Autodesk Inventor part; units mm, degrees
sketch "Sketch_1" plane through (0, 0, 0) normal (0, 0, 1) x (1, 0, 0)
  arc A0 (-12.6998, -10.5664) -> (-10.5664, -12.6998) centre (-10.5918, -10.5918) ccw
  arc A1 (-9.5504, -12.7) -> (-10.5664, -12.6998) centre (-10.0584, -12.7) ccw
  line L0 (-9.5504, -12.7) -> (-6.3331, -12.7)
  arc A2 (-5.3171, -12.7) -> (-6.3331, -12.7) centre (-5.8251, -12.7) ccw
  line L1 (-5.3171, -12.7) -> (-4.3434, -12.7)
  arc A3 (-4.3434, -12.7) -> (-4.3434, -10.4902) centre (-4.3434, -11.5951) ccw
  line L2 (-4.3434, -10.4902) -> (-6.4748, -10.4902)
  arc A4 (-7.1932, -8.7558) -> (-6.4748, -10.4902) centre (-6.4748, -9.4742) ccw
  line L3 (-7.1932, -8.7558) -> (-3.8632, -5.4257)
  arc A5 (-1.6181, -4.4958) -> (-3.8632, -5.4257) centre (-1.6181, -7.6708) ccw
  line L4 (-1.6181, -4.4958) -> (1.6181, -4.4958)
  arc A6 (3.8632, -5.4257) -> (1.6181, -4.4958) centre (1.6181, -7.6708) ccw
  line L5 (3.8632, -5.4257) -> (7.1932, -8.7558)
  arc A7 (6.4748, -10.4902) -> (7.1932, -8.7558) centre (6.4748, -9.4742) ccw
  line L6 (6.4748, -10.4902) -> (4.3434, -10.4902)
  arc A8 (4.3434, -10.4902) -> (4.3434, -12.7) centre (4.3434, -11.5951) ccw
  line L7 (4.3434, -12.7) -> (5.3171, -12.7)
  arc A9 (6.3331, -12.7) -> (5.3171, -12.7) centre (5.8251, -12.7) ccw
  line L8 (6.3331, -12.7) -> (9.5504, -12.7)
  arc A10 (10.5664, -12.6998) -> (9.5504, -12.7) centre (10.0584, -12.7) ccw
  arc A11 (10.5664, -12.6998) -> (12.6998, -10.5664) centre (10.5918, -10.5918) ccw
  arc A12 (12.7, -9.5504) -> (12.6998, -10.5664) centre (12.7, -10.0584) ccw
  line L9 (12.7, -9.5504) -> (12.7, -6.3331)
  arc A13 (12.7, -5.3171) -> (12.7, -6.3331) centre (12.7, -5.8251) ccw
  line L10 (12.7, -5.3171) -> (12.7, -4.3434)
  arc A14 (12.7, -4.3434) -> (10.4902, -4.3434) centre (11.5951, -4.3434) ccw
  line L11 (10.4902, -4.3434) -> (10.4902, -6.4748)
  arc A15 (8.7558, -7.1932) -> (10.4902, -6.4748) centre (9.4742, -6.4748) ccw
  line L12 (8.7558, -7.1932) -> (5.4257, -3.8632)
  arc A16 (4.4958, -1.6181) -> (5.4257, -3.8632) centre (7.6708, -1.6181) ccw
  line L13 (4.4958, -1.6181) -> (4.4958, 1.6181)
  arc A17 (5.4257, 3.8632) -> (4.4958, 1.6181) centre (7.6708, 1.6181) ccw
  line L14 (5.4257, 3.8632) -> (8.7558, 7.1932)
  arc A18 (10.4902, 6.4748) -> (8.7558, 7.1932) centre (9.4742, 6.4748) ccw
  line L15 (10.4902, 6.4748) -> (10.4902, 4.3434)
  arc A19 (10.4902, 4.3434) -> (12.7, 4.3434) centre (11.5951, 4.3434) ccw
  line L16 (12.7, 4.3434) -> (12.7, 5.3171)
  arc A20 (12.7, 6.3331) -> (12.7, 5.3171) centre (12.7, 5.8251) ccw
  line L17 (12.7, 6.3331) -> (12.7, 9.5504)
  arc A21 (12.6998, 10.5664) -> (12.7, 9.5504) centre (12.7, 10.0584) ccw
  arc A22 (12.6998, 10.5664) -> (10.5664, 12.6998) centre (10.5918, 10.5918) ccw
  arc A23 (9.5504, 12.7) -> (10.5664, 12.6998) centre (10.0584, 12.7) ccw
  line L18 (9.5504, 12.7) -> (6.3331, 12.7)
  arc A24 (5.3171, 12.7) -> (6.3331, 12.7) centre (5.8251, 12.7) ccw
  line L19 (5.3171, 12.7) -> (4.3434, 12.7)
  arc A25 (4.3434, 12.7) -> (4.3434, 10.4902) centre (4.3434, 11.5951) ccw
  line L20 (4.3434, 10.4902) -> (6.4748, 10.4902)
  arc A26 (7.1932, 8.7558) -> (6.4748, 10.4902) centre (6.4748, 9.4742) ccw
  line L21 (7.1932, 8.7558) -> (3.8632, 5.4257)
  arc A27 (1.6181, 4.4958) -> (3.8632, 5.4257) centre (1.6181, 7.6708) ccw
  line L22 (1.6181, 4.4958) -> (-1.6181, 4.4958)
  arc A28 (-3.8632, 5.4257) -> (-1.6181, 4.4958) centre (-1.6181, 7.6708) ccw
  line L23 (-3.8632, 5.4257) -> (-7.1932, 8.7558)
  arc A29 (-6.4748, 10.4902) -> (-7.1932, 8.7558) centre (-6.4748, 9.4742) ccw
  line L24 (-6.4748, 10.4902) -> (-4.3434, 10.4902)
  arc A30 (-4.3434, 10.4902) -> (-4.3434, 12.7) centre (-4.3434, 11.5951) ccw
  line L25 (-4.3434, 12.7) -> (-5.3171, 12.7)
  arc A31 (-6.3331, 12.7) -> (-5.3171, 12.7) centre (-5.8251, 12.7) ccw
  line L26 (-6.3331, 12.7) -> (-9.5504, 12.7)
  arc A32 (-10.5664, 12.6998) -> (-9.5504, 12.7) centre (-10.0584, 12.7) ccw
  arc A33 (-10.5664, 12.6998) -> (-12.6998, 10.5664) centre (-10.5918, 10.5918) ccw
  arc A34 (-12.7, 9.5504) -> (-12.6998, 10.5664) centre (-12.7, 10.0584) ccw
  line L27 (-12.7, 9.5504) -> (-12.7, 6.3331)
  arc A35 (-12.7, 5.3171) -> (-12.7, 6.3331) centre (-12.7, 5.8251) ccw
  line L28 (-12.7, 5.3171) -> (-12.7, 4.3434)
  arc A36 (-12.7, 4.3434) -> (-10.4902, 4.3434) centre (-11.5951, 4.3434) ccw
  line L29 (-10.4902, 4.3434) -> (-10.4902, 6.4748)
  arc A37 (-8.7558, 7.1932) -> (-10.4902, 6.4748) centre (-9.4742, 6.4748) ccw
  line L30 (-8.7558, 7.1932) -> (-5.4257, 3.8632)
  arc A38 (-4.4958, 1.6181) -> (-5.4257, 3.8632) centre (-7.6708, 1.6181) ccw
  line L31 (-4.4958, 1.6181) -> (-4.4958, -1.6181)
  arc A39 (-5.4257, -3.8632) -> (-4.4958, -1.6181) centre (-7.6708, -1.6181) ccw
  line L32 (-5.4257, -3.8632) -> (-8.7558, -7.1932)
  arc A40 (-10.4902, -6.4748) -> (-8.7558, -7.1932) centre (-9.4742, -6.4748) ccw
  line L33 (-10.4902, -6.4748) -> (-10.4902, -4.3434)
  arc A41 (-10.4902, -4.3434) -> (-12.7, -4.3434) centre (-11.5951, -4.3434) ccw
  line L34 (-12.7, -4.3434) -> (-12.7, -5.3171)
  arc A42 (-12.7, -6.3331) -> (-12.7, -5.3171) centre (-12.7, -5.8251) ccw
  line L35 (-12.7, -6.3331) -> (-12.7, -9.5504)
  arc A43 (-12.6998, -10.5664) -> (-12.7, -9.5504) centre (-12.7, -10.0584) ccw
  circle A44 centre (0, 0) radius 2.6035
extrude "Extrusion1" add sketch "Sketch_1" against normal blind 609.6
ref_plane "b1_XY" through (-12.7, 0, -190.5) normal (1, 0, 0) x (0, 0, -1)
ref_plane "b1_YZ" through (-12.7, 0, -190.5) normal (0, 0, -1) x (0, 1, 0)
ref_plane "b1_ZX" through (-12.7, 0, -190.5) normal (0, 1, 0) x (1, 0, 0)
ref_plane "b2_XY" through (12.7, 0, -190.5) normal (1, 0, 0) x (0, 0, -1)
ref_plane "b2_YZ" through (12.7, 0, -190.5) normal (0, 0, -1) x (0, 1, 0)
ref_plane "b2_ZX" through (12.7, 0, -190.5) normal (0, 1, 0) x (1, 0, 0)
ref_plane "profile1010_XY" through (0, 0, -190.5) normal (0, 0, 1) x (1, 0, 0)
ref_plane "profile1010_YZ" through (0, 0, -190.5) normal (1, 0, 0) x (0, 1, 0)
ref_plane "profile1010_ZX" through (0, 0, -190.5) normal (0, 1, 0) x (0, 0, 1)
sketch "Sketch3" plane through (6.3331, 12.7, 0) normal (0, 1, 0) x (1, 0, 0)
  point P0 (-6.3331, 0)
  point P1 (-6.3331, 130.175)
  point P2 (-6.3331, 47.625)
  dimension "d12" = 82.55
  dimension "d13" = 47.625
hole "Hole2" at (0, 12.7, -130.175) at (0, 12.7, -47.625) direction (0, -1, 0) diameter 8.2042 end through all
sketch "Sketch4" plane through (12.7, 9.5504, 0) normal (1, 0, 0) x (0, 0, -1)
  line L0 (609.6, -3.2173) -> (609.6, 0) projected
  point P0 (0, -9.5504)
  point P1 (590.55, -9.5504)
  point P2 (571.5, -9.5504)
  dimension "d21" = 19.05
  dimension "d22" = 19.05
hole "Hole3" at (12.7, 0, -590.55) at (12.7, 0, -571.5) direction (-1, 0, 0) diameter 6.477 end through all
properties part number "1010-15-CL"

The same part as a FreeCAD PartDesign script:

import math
import FreeCAD as App
import Part
import Sketcher
Q = App.Units.Quantity

doc = App.newDocument("Part")
body = doc.addObject("PartDesign::Body", "Body")

# Sketch on XY plane
sketch1 = doc.addObject("Sketcher::SketchObject", "Sketch")
body.addObject(sketch1)
sketch1.AttachmentSupport = (doc.XY_Plane, [""])
sketch1.MapMode = "FlatFace"
sketch1.addGeometry(Part.ArcOfCircle(Part.Circle(App.Vector(-12.7, -10.1, 0), App.Vector(0, 0, 1), 0.5), math.radians(-90), math.radians(90)), False)
sketch1.addGeometry(Part.ArcOfCircle(Part.Circle(App.Vector(-10.6, -10.6, 0), App.Vector(0, 0, 1), 2.1), math.radians(179), math.radians(271)), False)
sketch1.addGeometry(Part.ArcOfCircle(Part.Circle(App.Vector(-10.1, -12.7, 0), App.Vector(0, 0, 1), 0.5), math.radians(0), math.radians(180)), False)
sketch1.addGeometry(Part.LineSegment(App.Vector(-9.6, -12.7, 0), App.Vector(-6.3, -12.7, 0)), False)
sketch1.addGeometry(Part.ArcOfCircle(Part.Circle(App.Vector(-5.8, -12.7, 0), App.Vector(0, 0, 1), 0.5), math.radians(0), math.radians(180)), False)
sketch1.addGeometry(Part.LineSegment(App.Vector(-5.3, -12.7, 0), App.Vector(-4.3, -12.7, 0)), False)
sketch1.addGeometry(Part.ArcOfCircle(Part.Circle(App.Vector(-4.3, -11.6, 0), App.Vector(0, 0, 1), 1.1), math.radians(-90), math.radians(90)), False)
sketch1.addGeometry(Part.LineSegment(App.Vector(-4.3, -10.5, 0), App.Vector(-6.5, -10.5, 0)), False)
sketch1.addGeometry(Part.ArcOfCircle(Part.Circle(App.Vector(-6.5, -9.5, 0), App.Vector(0, 0, 1), 1), math.radians(135), math.radians(270)), False)
sketch1.addGeometry(Part.LineSegment(App.Vector(-7.2, -8.8, 0), App.Vector(-3.9, -5.4, 0)), False)
sketch1.addGeometry(Part.ArcOfCircle(Part.Circle(App.Vector(-1.6, -7.7, 0), App.Vector(0, 0, 1), 3.2), math.radians(90), math.radians(135)), False)
sketch1.addGeometry(Part.LineSegment(App.Vector(-1.6, -4.5, 0), App.Vector(1.6, -4.5, 0)), False)
sketch1.addGeometry(Part.ArcOfCircle(Part.Circle(App.Vector(1.6, -7.7, 0), App.Vector(0, 0, 1), 3.2), math.radians(45), math.radians(90)), False)
sketch1.addGeometry(Part.LineSegment(App.Vector(3.9, -5.4, 0), App.Vector(7.2, -8.8, 0)), False)
sketch1.addGeometry(Part.ArcOfCircle(Part.Circle(App.Vector(6.5, -9.5, 0), App.Vector(0, 0, 1), 1), math.radians(-90), math.radians(45)), False)
sketch1.addGeometry(Part.LineSegment(App.Vector(6.5, -10.5, 0), App.Vector(4.3, -10.5, 0)), False)
sketch1.addGeometry(Part.ArcOfCircle(Part.Circle(App.Vector(4.3, -11.6, 0), App.Vector(0, 0, 1), 1.1), math.radians(90), math.radians(270)), False)
sketch1.addGeometry(Part.LineSegment(App.Vector(4.3, -12.7, 0), App.Vector(5.3, -12.7, 0)), False)
sketch1.addGeometry(Part.ArcOfCircle(Part.Circle(App.Vector(5.8, -12.7, 0), App.Vector(0, 0, 1), 0.5), math.radians(0), math.radians(180)), False)
sketch1.addGeometry(Part.LineSegment(App.Vector(6.3, -12.7, 0), App.Vector(9.6, -12.7, 0)), False)
sketch1.addGeometry(Part.ArcOfCircle(Part.Circle(App.Vector(10.1, -12.7, 0), App.Vector(0, 0, 1), 0.5), math.radians(0), math.radians(180)), False)
sketch1.addGeometry(Part.ArcOfCircle(Part.Circle(App.Vector(10.6, -10.6, 0), App.Vector(0, 0, 1), 2.1), math.radians(-91), math.radians(1)), False)
sketch1.addGeometry(Part.ArcOfCircle(Part.Circle(App.Vector(12.7, -10.1, 0), App.Vector(0, 0, 1), 0.5), math.radians(90), math.radians(270)), False)
sketch1.addGeometry(Part.LineSegment(App.Vector(12.7, -9.6, 0), App.Vector(12.7, -6.3, 0)), False)
sketch1.addGeometry(Part.ArcOfCircle(Part.Circle(App.Vector(12.7, -5.8, 0), App.Vector(0, 0, 1), 0.5), math.radians(90), math.radians(270)), False)
sketch1.addGeometry(Part.LineSegment(App.Vector(12.7, -5.3, 0), App.Vector(12.7, -4.3, 0)), False)
sketch1.addGeometry(Part.ArcOfCircle(Part.Circle(App.Vector(11.6, -4.3, 0), App.Vector(0, 0, 1), 1.1), math.radians(0), math.radians(180)), False)
sketch1.addGeometry(Part.LineSegment(App.Vector(10.5, -4.3, 0), App.Vector(10.5, -6.5, 0)), False)
sketch1.addGeometry(Part.ArcOfCircle(Part.Circle(App.Vector(9.5, -6.5, 0), App.Vector(0, 0, 1), 1), math.radians(-135), math.radians(0)), False)
sketch1.addGeometry(Part.LineSegment(App.Vector(8.8, -7.2, 0), App.Vector(5.4, -3.9, 0)), False)
sketch1.addGeometry(Part.ArcOfCircle(Part.Circle(App.Vector(7.7, -1.6, 0), App.Vector(0, 0, 1), 3.2), math.radians(180), math.radians(225)), False)
sketch1.addGeometry(Part.LineSegment(App.Vector(4.5, -1.6, 0), App.Vector(4.5, 1.6, 0)), False)
sketch1.addGeometry(Part.ArcOfCircle(Part.Circle(App.Vector(7.7, 1.6, 0), App.Vector(0, 0, 1), 3.2), math.radians(135), math.radians(180)), False)
sketch1.addGeometry(Part.LineSegment(App.Vector(5.4, 3.9, 0), App.Vector(8.8, 7.2, 0)), False)
sketch1.addGeometry(Part.ArcOfCircle(Part.Circle(App.Vector(9.5, 6.5, 0), App.Vector(0, 0, 1), 1), math.radians(0), math.radians(135)), False)
sketch1.addGeometry(Part.LineSegment(App.Vector(10.5, 6.5, 0), App.Vector(10.5, 4.3, 0)), False)
sketch1.addGeometry(Part.ArcOfCircle(Part.Circle(App.Vector(11.6, 4.3, 0), App.Vector(0, 0, 1), 1.1), math.radians(180), math.radians(360)), False)
sketch1.addGeometry(Part.LineSegment(App.Vector(12.7, 4.3, 0), App.Vector(12.7, 5.3, 0)), False)
sketch1.addGeometry(Part.ArcOfCircle(Part.Circle(App.Vector(12.7, 5.8, 0), App.Vector(0, 0, 1), 0.5), math.radians(90), math.radians(270)), False)
sketch1.addGeometry(Part.LineSegment(App.Vector(12.7, 6.3, 0), App.Vector(12.7, 9.6, 0)), False)
sketch1.addGeometry(Part.ArcOfCircle(Part.Circle(App.Vector(12.7, 10.1, 0), App.Vector(0, 0, 1), 0.5), math.radians(90), math.radians(270)), False)
sketch1.addGeometry(Part.ArcOfCircle(Part.Circle(App.Vector(10.6, 10.6, 0), App.Vector(0, 0, 1), 2.1), math.radians(-1), math.radians(91)), False)
sketch1.addGeometry(Part.ArcOfCircle(Part.Circle(App.Vector(10.1, 12.7, 0), App.Vector(0, 0, 1), 0.5), math.radians(180), math.radians(360)), False)
sketch1.addGeometry(Part.LineSegment(App.Vector(9.6, 12.7, 0), App.Vector(6.3, 12.7, 0)), False)
sketch1.addGeometry(Part.ArcOfCircle(Part.Circle(App.Vector(5.8, 12.7, 0), App.Vector(0, 0, 1), 0.5), math.radians(180), math.radians(360)), False)
sketch1.addGeometry(Part.LineSegment(App.Vector(5.3, 12.7, 0), App.Vector(4.3, 12.7, 0)), False)
sketch1.addGeometry(Part.ArcOfCircle(Part.Circle(App.Vector(4.3, 11.6, 0), App.Vector(0, 0, 1), 1.1), math.radians(90), math.radians(270)), False)
sketch1.addGeometry(Part.LineSegment(App.Vector(4.3, 10.5, 0), App.Vector(6.5, 10.5, 0)), False)
sketch1.addGeometry(Part.ArcOfCircle(Part.Circle(App.Vector(6.5, 9.5, 0), App.Vector(0, 0, 1), 1), math.radians(-45), math.radians(90)), False)
sketch1.addGeometry(Part.LineSegment(App.Vector(7.2, 8.8, 0), App.Vector(3.9, 5.4, 0)), False)
sketch1.addGeometry(Part.ArcOfCircle(Part.Circle(App.Vector(1.6, 7.7, 0), App.Vector(0, 0, 1), 3.2), math.radians(-90), math.radians(-45)), False)
sketch1.addGeometry(Part.LineSegment(App.Vector(1.6, 4.5, 0), App.Vector(-1.6, 4.5, 0)), False)
sketch1.addGeometry(Part.ArcOfCircle(Part.Circle(App.Vector(-1.6, 7.7, 0), App.Vector(0, 0, 1), 3.2), math.radians(-135), math.radians(-90)), False)
sketch1.addGeometry(Part.LineSegment(App.Vector(-3.9, 5.4, 0), App.Vector(-7.2, 8.8, 0)), False)
sketch1.addGeometry(Part.ArcOfCircle(Part.Circle(App.Vector(-6.5, 9.5, 0), App.Vector(0, 0, 1), 1), math.radians(90), math.radians(225)), False)
sketch1.addGeometry(Part.LineSegment(App.Vector(-6.5, 10.5, 0), App.Vector(-4.3, 10.5, 0)), False)
sketch1.addGeometry(Part.ArcOfCircle(Part.Circle(App.Vector(-4.3, 11.6, 0), App.Vector(0, 0, 1), 1.1), math.radians(-90), math.radians(90)), False)
sketch1.addGeometry(Part.LineSegment(App.Vector(-4.3, 12.7, 0), App.Vector(-5.3, 12.7, 0)), False)
sketch1.addGeometry(Part.ArcOfCircle(Part.Circle(App.Vector(-5.8, 12.7, 0), App.Vector(0, 0, 1), 0.5), math.radians(180), math.radians(360)), False)
sketch1.addGeometry(Part.LineSegment(App.Vector(-6.3, 12.7, 0), App.Vector(-9.6, 12.7, 0)), False)
sketch1.addGeometry(Part.ArcOfCircle(Part.Circle(App.Vector(-10.1, 12.7, 0), App.Vector(0, 0, 1), 0.5), math.radians(-180), math.radians(0)), False)
sketch1.addGeometry(Part.ArcOfCircle(Part.Circle(App.Vector(-10.6, 10.6, 0), App.Vector(0, 0, 1), 2.1), math.radians(89), math.radians(181)), False)
sketch1.addGeometry(Part.ArcOfCircle(Part.Circle(App.Vector(-12.7, 10.1, 0), App.Vector(0, 0, 1), 0.5), math.radians(-90), math.radians(90)), False)
sketch1.addGeometry(Part.LineSegment(App.Vector(-12.7, 9.6, 0), App.Vector(-12.7, 6.3, 0)), False)
sketch1.addGeometry(Part.ArcOfCircle(Part.Circle(App.Vector(-12.7, 5.8, 0), App.Vector(0, 0, 1), 0.5), math.radians(-90), math.radians(90)), False)
sketch1.addGeometry(Part.LineSegment(App.Vector(-12.7, 5.3, 0), App.Vector(-12.7, 4.3, 0)), False)
sketch1.addGeometry(Part.ArcOfCircle(Part.Circle(App.Vector(-11.6, 4.3, 0), App.Vector(0, 0, 1), 1.1), math.radians(180), math.radians(360)), False)
sketch1.addGeometry(Part.LineSegment(App.Vector(-10.5, 4.3, 0), App.Vector(-10.5, 6.5, 0)), False)
sketch1.addGeometry(Part.ArcOfCircle(Part.Circle(App.Vector(-9.5, 6.5, 0), App.Vector(0, 0, 1), 1), math.radians(45), math.radians(180)), False)
sketch1.addGeometry(Part.LineSegment(App.Vector(-8.8, 7.2, 0), App.Vector(-5.4, 3.9, 0)), False)
sketch1.addGeometry(Part.ArcOfCircle(Part.Circle(App.Vector(-7.7, 1.6, 0), App.Vector(0, 0, 1), 3.2), math.radians(0), math.radians(45)), False)
sketch1.addGeometry(Part.LineSegment(App.Vector(-4.5, 1.6, 0), App.Vector(-4.5, -1.6, 0)), False)
sketch1.addGeometry(Part.ArcOfCircle(Part.Circle(App.Vector(-7.7, -1.6, 0), App.Vector(0, 0, 1), 3.2), math.radians(-45), math.radians(0)), False)
sketch1.addGeometry(Part.LineSegment(App.Vector(-5.4, -3.9, 0), App.Vector(-8.8, -7.2, 0)), False)
sketch1.addGeometry(Part.ArcOfCircle(Part.Circle(App.Vector(-9.5, -6.5, 0), App.Vector(0, 0, 1), 1), math.radians(180), math.radians(315)), False)
sketch1.addGeometry(Part.LineSegment(App.Vector(-10.5, -6.5, 0), App.Vector(-10.5, -4.3, 0)), False)
sketch1.addGeometry(Part.ArcOfCircle(Part.Circle(App.Vector(-11.6, -4.3, 0), App.Vector(0, 0, 1), 1.1), math.radians(0), math.radians(180)), False)
sketch1.addGeometry(Part.LineSegment(App.Vector(-12.7, -4.3, 0), App.Vector(-12.7, -5.3, 0)), False)
sketch1.addGeometry(Part.ArcOfCircle(Part.Circle(App.Vector(-12.7, -5.8, 0), App.Vector(0, 0, 1), 0.5), math.radians(-90), math.radians(90)), False)
sketch1.addGeometry(Part.LineSegment(App.Vector(-12.7, -6.3, 0), App.Vector(-12.7, -9.6, 0)), False)
sketch1.addGeometry(Part.Circle(App.Vector(0, 0, 0), App.Vector(0, 0, 1), 2.6), False)
sketch1.addConstraint(Sketcher.Constraint("Coincident", 0, 1, 1, 1))
sketch1.addConstraint(Sketcher.Constraint("Coincident", 1, 2, 2, 2))
sketch1.addConstraint(Sketcher.Constraint("Coincident", 2, 1, 3, 1))
sketch1.addConstraint(Sketcher.Constraint("Coincident", 3, 2, 4, 2))
sketch1.addConstraint(Sketcher.Constraint("Coincident", 4, 1, 5, 1))
sketch1.addConstraint(Sketcher.Constraint("Tangent", 5, 2, 6, 1))
sketch1.addConstraint(Sketcher.Constraint("Tangent", 6, 2, 7, 1))
sketch1.addConstraint(Sketcher.Constraint("Tangent", 7, 2, 8, 2))
sketch1.addConstraint(Sketcher.Constraint("Tangent", 8, 1, 9, 1))
sketch1.addConstraint(Sketcher.Constraint("Tangent", 9, 2, 10, 2))
sketch1.addConstraint(Sketcher.Constraint("Tangent", 10, 1, 11, 1))
sketch1.addConstraint(Sketcher.Constraint("Tangent", 11, 2, 12, 2))
sketch1.addConstraint(Sketcher.Constraint("Tangent", 12, 1, 13, 1))
sketch1.addConstraint(Sketcher.Constraint("Tangent", 13, 2, 14, 2))
sketch1.addConstraint(Sketcher.Constraint("Tangent", 14, 1, 15, 1))
sketch1.addConstraint(Sketcher.Constraint("Tangent", 15, 2, 16, 1))
sketch1.addConstraint(Sketcher.Constraint("Tangent", 16, 2, 17, 1))
sketch1.addConstraint(Sketcher.Constraint("Coincident", 17, 2, 18, 2))
sketch1.addConstraint(Sketcher.Constraint("Coincident", 18, 1, 19, 1))
sketch1.addConstraint(Sketcher.Constraint("Coincident", 19, 2, 20, 2))
sketch1.addConstraint(Sketcher.Constraint("Coincident", 20, 1, 21, 1))
sketch1.addConstraint(Sketcher.Constraint("Coincident", 21, 2, 22, 2))
sketch1.addConstraint(Sketcher.Constraint("Coincident", 22, 1, 23, 1))
sketch1.addConstraint(Sketcher.Constraint("Coincident", 23, 2, 24, 2))
sketch1.addConstraint(Sketcher.Constraint("Coincident", 24, 1, 25, 1))
sketch1.addConstraint(Sketcher.Constraint("Tangent", 25, 2, 26, 1))
sketch1.addConstraint(Sketcher.Constraint("Tangent", 26, 2, 27, 1))
sketch1.addConstraint(Sketcher.Constraint("Tangent", 27, 2, 28, 2))
sketch1.addConstraint(Sketcher.Constraint("Tangent", 28, 1, 29, 1))
sketch1.addConstraint(Sketcher.Constraint("Tangent", 29, 2, 30, 2))
sketch1.addConstraint(Sketcher.Constraint("Tangent", 30, 1, 31, 1))
sketch1.addConstraint(Sketcher.Constraint("Tangent", 31, 2, 32, 2))
sketch1.addConstraint(Sketcher.Constraint("Tangent", 32, 1, 33, 1))
sketch1.addConstraint(Sketcher.Constraint("Tangent", 33, 2, 34, 2))
sketch1.addConstraint(Sketcher.Constraint("Tangent", 34, 1, 35, 1))
sketch1.addConstraint(Sketcher.Constraint("Tangent", 35, 2, 36, 1))
sketch1.addConstraint(Sketcher.Constraint("Tangent", 36, 2, 37, 1))
sketch1.addConstraint(Sketcher.Constraint("Coincident", 37, 2, 38, 2))
sketch1.addConstraint(Sketcher.Constraint("Coincident", 38, 1, 39, 1))
sketch1.addConstraint(Sketcher.Constraint("Coincident", 39, 2, 40, 2))
sketch1.addConstraint(Sketcher.Constraint("Coincident", 40, 1, 41, 1))
sketch1.addConstraint(Sketcher.Constraint("Coincident", 41, 2, 42, 2))
sketch1.addConstraint(Sketcher.Constraint("Coincident", 42, 1, 43, 1))
sketch1.addConstraint(Sketcher.Constraint("Coincident", 43, 2, 44, 2))
sketch1.addConstraint(Sketcher.Constraint("Coincident", 44, 1, 45, 1))
sketch1.addConstraint(Sketcher.Constraint("Tangent", 45, 2, 46, 1))
sketch1.addConstraint(Sketcher.Constraint("Tangent", 46, 2, 47, 1))
sketch1.addConstraint(Sketcher.Constraint("Tangent", 47, 2, 48, 2))
sketch1.addConstraint(Sketcher.Constraint("Tangent", 48, 1, 49, 1))
sketch1.addConstraint(Sketcher.Constraint("Tangent", 49, 2, 50, 2))
sketch1.addConstraint(Sketcher.Constraint("Tangent", 50, 1, 51, 1))
sketch1.addConstraint(Sketcher.Constraint("Tangent", 51, 2, 52, 2))
sketch1.addConstraint(Sketcher.Constraint("Tangent", 52, 1, 53, 1))
sketch1.addConstraint(Sketcher.Constraint("Tangent", 53, 2, 54, 2))
sketch1.addConstraint(Sketcher.Constraint("Tangent", 54, 1, 55, 1))
sketch1.addConstraint(Sketcher.Constraint("Tangent", 55, 2, 56, 1))
sketch1.addConstraint(Sketcher.Constraint("Tangent", 56, 2, 57, 1))
sketch1.addConstraint(Sketcher.Constraint("Coincident", 57, 2, 58, 2))
sketch1.addConstraint(Sketcher.Constraint("Coincident", 58, 1, 59, 1))
sketch1.addConstraint(Sketcher.Constraint("Coincident", 59, 2, 60, 2))
sketch1.addConstraint(Sketcher.Constraint("Coincident", 60, 1, 61, 1))
sketch1.addConstraint(Sketcher.Constraint("Coincident", 61, 2, 62, 2))
sketch1.addConstraint(Sketcher.Constraint("Coincident", 62, 1, 63, 1))
sketch1.addConstraint(Sketcher.Constraint("Coincident", 63, 2, 64, 2))
sketch1.addConstraint(Sketcher.Constraint("Coincident", 64, 1, 65, 1))
sketch1.addConstraint(Sketcher.Constraint("Tangent", 65, 2, 66, 1))
sketch1.addConstraint(Sketcher.Constraint("Tangent", 66, 2, 67, 1))
sketch1.addConstraint(Sketcher.Constraint("Tangent", 67, 2, 68, 2))
sketch1.addConstraint(Sketcher.Constraint("Tangent", 68, 1, 69, 1))
sketch1.addConstraint(Sketcher.Constraint("Tangent", 69, 2, 70, 2))
sketch1.addConstraint(Sketcher.Constraint("Tangent", 70, 1, 71, 1))
sketch1.addConstraint(Sketcher.Constraint("Tangent", 71, 2, 72, 2))
sketch1.addConstraint(Sketcher.Constraint("Tangent", 72, 1, 73, 1))
sketch1.addConstraint(Sketcher.Constraint("Tangent", 73, 2, 74, 2))
sketch1.addConstraint(Sketcher.Constraint("Tangent", 74, 1, 75, 1))
sketch1.addConstraint(Sketcher.Constraint("Tangent", 75, 2, 76, 1))
sketch1.addConstraint(Sketcher.Constraint("Tangent", 76, 2, 77, 1))
sketch1.addConstraint(Sketcher.Constraint("Coincident", 77, 2, 78, 2))
sketch1.addConstraint(Sketcher.Constraint("Coincident", 78, 1, 79, 1))
sketch1.addConstraint(Sketcher.Constraint("Coincident", 79, 2, 0, 2))
sketch1.addConstraint(Sketcher.Constraint("Horizontal", 3))
sketch1.addConstraint(Sketcher.Constraint("Horizontal", 5))
sketch1.addConstraint(Sketcher.Constraint("Horizontal", 7))
sketch1.addConstraint(Sketcher.Constraint("Horizontal", 11))
sketch1.addConstraint(Sketcher.Constraint("Horizontal", 15))
sketch1.addConstraint(Sketcher.Constraint("Horizontal", 17))
sketch1.addConstraint(Sketcher.Constraint("Horizontal", 19))
sketch1.addConstraint(Sketcher.Constraint("Vertical", 23))
sketch1.addConstraint(Sketcher.Constraint("Vertical", 25))
sketch1.addConstraint(Sketcher.Constraint("Vertical", 27))
sketch1.addConstraint(Sketcher.Constraint("Vertical", 31))
sketch1.addConstraint(Sketcher.Constraint("Vertical", 35))
sketch1.addConstraint(Sketcher.Constraint("Vertical", 37))
sketch1.addConstraint(Sketcher.Constraint("Vertical", 39))
sketch1.addConstraint(Sketcher.Constraint("Horizontal", 43))
sketch1.addConstraint(Sketcher.Constraint("Horizontal", 45))
sketch1.addConstraint(Sketcher.Constraint("Horizontal", 47))
sketch1.addConstraint(Sketcher.Constraint("Horizontal", 51))
sketch1.addConstraint(Sketcher.Constraint("Horizontal", 55))
sketch1.addConstraint(Sketcher.Constraint("Horizontal", 57))
sketch1.addConstraint(Sketcher.Constraint("Horizontal", 59))
sketch1.addConstraint(Sketcher.Constraint("Vertical", 63))
sketch1.addConstraint(Sketcher.Constraint("Vertical", 65))
sketch1.addConstraint(Sketcher.Constraint("Vertical", 67))
sketch1.addConstraint(Sketcher.Constraint("Vertical", 71))
sketch1.addConstraint(Sketcher.Constraint("Vertical", 75))
sketch1.addConstraint(Sketcher.Constraint("Vertical", 77))
sketch1.addConstraint(Sketcher.Constraint("Vertical", 79))
sketch1.addConstraint(Sketcher.Constraint("Coincident", 80, 3, -1, 1))
sketch1.addConstraint(Sketcher.Constraint("Equal", 0, 2))
sketch1.addConstraint(Sketcher.Constraint("Equal", 2, 4))
sketch1.addConstraint(Sketcher.Constraint("Equal", 10, 12))
sketch1.addConstraint(Sketcher.Constraint("Equal", 8, 14))
sketch1.addConstraint(Sketcher.Constraint("Equal", 6, 16))
sketch1.addConstraint(Sketcher.Constraint("Equal", 4, 18))
sketch1.addConstraint(Sketcher.Constraint("Equal", 18, 20))
sketch1.addConstraint(Sketcher.Constraint("Equal", 1, 21))
sketch1.addConstraint(Sketcher.Constraint("Equal", 20, 22))
sketch1.addConstraint(Sketcher.Constraint("Equal", 22, 24))
sketch1.addConstraint(Sketcher.Constraint("Equal", 16, 26))
sketch1.addConstraint(Sketcher.Constraint("Equal", 14, 28))
sketch1.addConstraint(Sketcher.Constraint("Equal", 12, 30))
sketch1.addConstraint(Sketcher.Constraint("Equal", 30, 32))
sketch1.addConstraint(Sketcher.Constraint("Equal", 28, 34))
sketch1.addConstraint(Sketcher.Constraint("Equal", 26, 36))
sketch1.addConstraint(Sketcher.Constraint("Equal", 24, 38))
sketch1.addConstraint(Sketcher.Constraint("Equal", 38, 40))
sketch1.addConstraint(Sketcher.Constraint("Equal", 21, 41))
sketch1.addConstraint(Sketcher.Constraint("Equal", 40, 42))
sketch1.addConstraint(Sketcher.Constraint("Equal", 42, 44))
sketch1.addConstraint(Sketcher.Constraint("Equal", 36, 46))
sketch1.addConstraint(Sketcher.Constraint("Equal", 34, 48))
sketch1.addConstraint(Sketcher.Constraint("Equal", 32, 50))
sketch1.addConstraint(Sketcher.Constraint("Equal", 50, 52))
sketch1.addConstraint(Sketcher.Constraint("Equal", 48, 54))
sketch1.addConstraint(Sketcher.Constraint("Equal", 46, 56))
sketch1.addConstraint(Sketcher.Constraint("Equal", 44, 58))
sketch1.addConstraint(Sketcher.Constraint("Equal", 58, 60))
sketch1.addConstraint(Sketcher.Constraint("Equal", 41, 61))
sketch1.addConstraint(Sketcher.Constraint("Equal", 60, 62))
sketch1.addConstraint(Sketcher.Constraint("Equal", 62, 64))
sketch1.addConstraint(Sketcher.Constraint("Equal", 56, 66))
sketch1.addConstraint(Sketcher.Constraint("Equal", 54, 68))
sketch1.addConstraint(Sketcher.Constraint("Equal", 52, 70))
sketch1.addConstraint(Sketcher.Constraint("Equal", 70, 72))
sketch1.addConstraint(Sketcher.Constraint("Equal", 68, 74))
sketch1.addConstraint(Sketcher.Constraint("Equal", 66, 76))
sketch1.addConstraint(Sketcher.Constraint("Equal", 64, 78))
sketch1.addConstraint(Sketcher.Constraint("Symmetric", 0, 3, 40, 3, -1, 1))
sketch1.addConstraint(Sketcher.Constraint("Symmetric", 1, 3, 41, 3, -1, 1))
sketch1.addConstraint(Sketcher.Constraint("Symmetric", 2, 3, 42, 3, -1, 1))
sketch1.addConstraint(Sketcher.Constraint("Symmetric", 4, 3, 44, 3, -1, 1))
sketch1.addConstraint(Sketcher.Constraint("Symmetric", 6, 3, 46, 3, -1, 1))
sketch1.addConstraint(Sketcher.Constraint("Symmetric", 10, 3, 50, 3, -1, 1))
sketch1.addConstraint(Sketcher.Constraint("Symmetric", 14, 3, 54, 3, -1, 1))
sketch1.addConstraint(Sketcher.Constraint("Symmetric", 18, 3, 58, 3, -1, 1))
sketch1.addConstraint(Sketcher.Constraint("Symmetric", 20, 3, 60, 3, -1, 1))
sketch1.addConstraint(Sketcher.Constraint("Symmetric", 21, 3, 61, 3, -1, 1))
sketch1.addConstraint(Sketcher.Constraint("Symmetric", 22, 3, 62, 3, -1, 1))
sketch1.addConstraint(Sketcher.Constraint("Symmetric", 24, 3, 64, 3, -1, 1))
sketch1.addConstraint(Sketcher.Constraint("Symmetric", 26, 3, 66, 3, -1, 1))
sketch1.addConstraint(Sketcher.Constraint("Symmetric", 30, 3, 70, 3, -1, 1))
sketch1.addConstraint(Sketcher.Constraint("Symmetric", 34, 3, 74, 3, -1, 1))
sketch1.addConstraint(Sketcher.Constraint("Symmetric", 38, 3, 78, 3, -1, 1))
sketch1.addConstraint(Sketcher.Constraint("Symmetric", 8, 3, 14, 3, -2))
sketch1.addConstraint(Sketcher.Constraint("Symmetric", 4, 3, 18, 3, -2))
sketch1.addConstraint(Sketcher.Constraint("Symmetric", 2, 3, 20, 3, -2))
sketch1.addConstraint(Sketcher.Constraint("Symmetric", 1, 3, 21, 3, -2))
sketch1.addConstraint(Sketcher.Constraint("Symmetric", 0, 3, 22, 3, -2))
sketch1.addConstraint(Sketcher.Constraint("Symmetric", 38, 3, 64, 3, -2))
sketch1.addConstraint(Sketcher.Constraint("Symmetric", 36, 3, 66, 3, -2))
sketch1.addConstraint(Sketcher.Constraint("Symmetric", 49, 2, 52, 1, -2))
sketch1.addConstraint(Sketcher.Constraint("Symmetric", 33, 2, 68, 1, -2))
sketch1.addConstraint(Sketcher.Constraint("Symmetric", 29, 2, 72, 1, -2))
sketch1.addConstraint(Sketcher.Constraint("Perpendicular", 9, 13))
sketch1.addConstraint(Sketcher.Constraint("Parallel", 13, 29))
sketch1.addConstraint(Sketcher.Constraint("Perpendicular", 29, 33))
sketch1.addConstraint(Sketcher.Constraint("Horizontal", 2, 3, 4, 3))
sketch1.addConstraint(Sketcher.Constraint("Horizontal", 26, 3, 76, 3))
sketch1.addConstraint(Sketcher.Constraint("Horizontal", 20, 3, 1, 2))
sketch1.addConstraint(Sketcher.Constraint("Horizontal", 1, 2, 2, 1))
sketch1.addConstraint(Sketcher.Constraint("Horizontal", 3, 2, 4, 1))
sketch1.addConstraint(Sketcher.Constraint("Horizontal", 17, 2, 18, 1))
sketch1.addConstraint(Sketcher.Constraint("Horizontal", 41, 2, 42, 1))
sketch1.addConstraint(Sketcher.Constraint("Horizontal", 57, 2, 58, 1))
sketch1.addConstraint(Sketcher.Constraint("Vertical", 22, 3, 24, 3))
sketch1.addConstraint(Sketcher.Constraint("Vertical", 16, 3, 46, 3))
sketch1.addConstraint(Sketcher.Constraint("Vertical", 6, 3, 56, 3))
sketch1.addConstraint(Sketcher.Constraint("Vertical", 78, 3, 0, 1))
sketch1.addConstraint(Sketcher.Constraint("Vertical", 21, 2, 22, 1))
sketch1.addConstraint(Sketcher.Constraint("Vertical", 23, 2, 24, 1))
sketch1.addConstraint(Sketcher.Constraint("Vertical", 37, 2, 38, 1))
sketch1.addConstraint(Sketcher.Constraint("Vertical", 61, 2, 62, 1))
sketch1.addConstraint(Sketcher.Constraint("Vertical", 77, 2, 78, 1))
sketch1.addConstraint(Sketcher.Constraint("Equal", 59, 23))
sketch1.addConstraint(Sketcher.Constraint("Equal", 57, 25))
sketch1.addConstraint(Sketcher.Constraint("Equal", 55, 27))
sketch1.addConstraint(Sketcher.Constraint("Equal", 51, 31))
sketch1.addConstraint(Sketcher.Constraint("Equal", 13, 29))
sketch1.addConstraint(Sketcher.Constraint("Radius", 0, Q("0.02 in")))
sketch1.addConstraint(Sketcher.Constraint("Radius", 8, Q("0.04 in")))
sketch1.addConstraint(Sketcher.Constraint("Diameter", 80, Q("0.205 in")))
sketch1.addConstraint(Sketcher.Constraint("Radius", 1, Q("0.083 in")))
sketch1.addConstraint(Sketcher.Constraint("Radius", 10, Q("0.125 in")))
sketch1.addConstraint(Sketcher.Constraint("DistanceX", 0, 3, -1, 1, Q("0.5 in")))
sketch1.addConstraint(Sketcher.Constraint("DistanceY", 2, 3, -1, 1, Q("0.5 in")))
sketch1.addConstraint(Sketcher.Constraint("Radius", 6, Q("0.0435 in")))
sketch1.addConstraint(Sketcher.Constraint("DistanceX", 11, 1, 11, 2, Q("0.1274 in")))
sketch1.addConstraint(Sketcher.Constraint("DistanceY", 0, 3, -1, 1, Q("0.396 in")))
sketch1.addConstraint(Sketcher.Constraint("DistanceX", 6, 3, -1, 1, Q("0.171 in")))
sketch1.addConstraint(Sketcher.Constraint("DistanceY", 10, 3, -1, 1, Q("0.302 in")))
sketch1.addConstraint(Sketcher.Constraint("DistanceX", 3, 1, 3, 2, Q("3.2173 mm")))
pad1 = doc.addObject("PartDesign::Pad", "Pad")
body.addObject(pad1)
pad1.Profile = sketch1
pad1.Length = Q("24 in")
pad1.Reversed = True

# Sketch on XZ plane
sketch2 = doc.addObject("Sketcher::SketchObject", "Sketch001")
body.addObject(sketch2)
sketch2.AttachmentSupport = (doc.XZ_Plane, [""])
sketch2.MapMode = "FlatFace"
sketch2.AttachmentOffset = App.Placement(App.Vector(0, 0, -0.5 * 25.4), App.Rotation())
sketch2.addGeometry(Part.Circle(App.Vector(0, -130.2, 0), App.Vector(0, 0, 1), 4.1), False)
sketch2.addGeometry(Part.Circle(App.Vector(0, -47.6, 0), App.Vector(0, 0, 1), 4.1), False)
sketch2.addConstraint(Sketcher.Constraint("Equal", 0, 1))
sketch2.addConstraint(Sketcher.Constraint("PointOnObject", 0, 3, -2))
sketch2.addConstraint(Sketcher.Constraint("PointOnObject", 1, 3, -2))
sketch2.addConstraint(Sketcher.Constraint("Diameter", 0, Q("0.323 in")))
sketch2.addConstraint(Sketcher.Constraint("DistanceY", 0, 3, 1, 3, Q("3.25 in")))
sketch2.addConstraint(Sketcher.Constraint("DistanceY", 0, 3, -1, 1, Q("5.125 in")))
doc.recompute()
hole = doc.addObject("PartDesign::Hole", "Hole")
body.addObject(hole)
hole.Profile = sketch2
hole.ThreadType = "None"
hole.Diameter = Q("0.323 in")
hole.DepthType = "ThroughAll"
hole.Reversed = True

# Sketch on YZ plane
sketch3 = doc.addObject("Sketcher::SketchObject", "Sketch002")
body.addObject(sketch3)
sketch3.AttachmentSupport = (doc.YZ_Plane, [""])
sketch3.MapMode = "FlatFace"
sketch3.AttachmentOffset = App.Placement(App.Vector(0, 0, 0.5 * 25.4), App.Rotation())
sketch3.addGeometry(Part.Circle(App.Vector(0, -590.5, 0), App.Vector(0, 0, 1), 3.2), False)
sketch3.addGeometry(Part.Circle(App.Vector(0, -571.5, 0), App.Vector(0, 0, 1), 3.2), False)
sketch3.addConstraint(Sketcher.Constraint("Equal", 0, 1))
sketch3.addConstraint(Sketcher.Constraint("PointOnObject", 0, 3, -2))
sketch3.addConstraint(Sketcher.Constraint("PointOnObject", 1, 3, -2))
sketch3.addConstraint(Sketcher.Constraint("Diameter", 0, Q("0.255 in")))
sketch3.addConstraint(Sketcher.Constraint("DistanceY", 1, 3, -1, 1, Q("22.5 in")))
sketch3.addConstraint(Sketcher.Constraint("DistanceY", 0, 3, -1, 1, Q("23.25 in")))
doc.recompute()
hole2 = doc.addObject("PartDesign::Hole", "Hole001")
body.addObject(hole2)
hole2.Profile = sketch3
hole2.ThreadType = "None"
hole2.Diameter = Q("0.255 in")
hole2.DepthType = "ThroughAll"

doc.recompute()
